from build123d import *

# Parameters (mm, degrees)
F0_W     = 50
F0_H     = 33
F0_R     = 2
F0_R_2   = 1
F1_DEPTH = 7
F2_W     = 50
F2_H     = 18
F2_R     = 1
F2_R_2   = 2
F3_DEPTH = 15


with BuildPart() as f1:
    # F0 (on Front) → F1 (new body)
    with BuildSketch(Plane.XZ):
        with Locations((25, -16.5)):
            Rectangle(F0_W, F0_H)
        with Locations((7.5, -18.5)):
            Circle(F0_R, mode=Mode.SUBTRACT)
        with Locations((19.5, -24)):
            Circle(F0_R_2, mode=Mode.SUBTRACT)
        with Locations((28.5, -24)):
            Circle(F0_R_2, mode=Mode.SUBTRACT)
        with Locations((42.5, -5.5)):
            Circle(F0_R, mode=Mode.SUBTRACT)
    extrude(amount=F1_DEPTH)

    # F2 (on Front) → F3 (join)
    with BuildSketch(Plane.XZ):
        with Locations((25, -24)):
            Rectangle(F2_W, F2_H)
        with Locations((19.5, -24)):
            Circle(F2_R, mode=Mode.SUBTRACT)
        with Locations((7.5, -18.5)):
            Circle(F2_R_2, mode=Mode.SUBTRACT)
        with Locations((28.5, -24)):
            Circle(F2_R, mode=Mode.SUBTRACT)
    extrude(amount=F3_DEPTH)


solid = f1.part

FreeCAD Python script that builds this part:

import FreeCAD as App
import Part
import Sketcher
from FreeCAD import Vector
Q = App.Units.Quantity


def add_polygon(sketch, points):
    """Adds a closed chain of lines whose ends are joined by coincident constraints."""
    first, n = sketch.GeometryCount, len(points)
    for a, b in zip(points, points[1:] + points[:1]):
        sketch.addGeometry(Part.LineSegment(App.Vector(*a, 0), App.Vector(*b, 0)), False)
    for i in range(n):
        sketch.addConstraint(Sketcher.Constraint("Coincident", first + i, 2, first + (i + 1) % n, 1))

doc = App.newDocument("Part")
params = doc.addObject("Spreadsheet::Sheet", "Params")
for row, (alias, value) in enumerate([
    ("sketch1_diameter", "2 mm"),
    ("sketch1_diameter2", "4 mm"),
    ("sketch1_width", "50 mm"),
    ("sketch1_height", "33 mm"),
    ("pad1_length", "7 mm"),
    ("sketch2_diameter", "2 mm"),
    ("sketch2_diameter2", "4 mm"),
    ("sketch2_width", "50 mm"),
    ("sketch2_height", "18 mm"),
    ("pad2_length", "15 mm"),
], start=1):
    params.set(f"A{row}", alias)
    params.set(f"B{row}", "=" + value)
    params.setAlias(f"B{row}", alias)

body = doc.addObject("PartDesign::Body", "Body")

sketch1 = doc.addObject("Sketcher::SketchObject", "Sketch")
body.addObject(sketch1)
sketch1.AttachmentSupport = (doc.XZ_Plane, [""])
sketch1.MapMode = "FlatFace"
add_polygon(sketch1, [(0, 0), (0, -33), (50, -33), (50, 0)])
sketch1.addGeometry(Part.Circle(Vector(19.5, -24, 0), Vector(0, 0, 1), 1), False)
sketch1.addGeometry(Part.Circle(Vector(7.5, -18.5, 0), Vector(0, 0, 1), 2), False)
sketch1.addGeometry(Part.Circle(Vector(28.5, -24, 0), Vector(0, 0, 1), 1), False)
sketch1.addGeometry(Part.Circle(Vector(42.5, -5.5, 0), Vector(0, 0, 1), 2), False)
sketch1.addConstraint(Sketcher.Constraint("Vertical", 0))
sketch1.addConstraint(Sketcher.Constraint("Horizontal", 1))
sketch1.addConstraint(Sketcher.Constraint("Vertical", 2))
sketch1.addConstraint(Sketcher.Constraint("Horizontal", 3))
sketch1.addConstraint(Sketcher.Constraint("Coincident", 3, 2, -1, 1))
sketch1.addConstraint(Sketcher.Constraint("Equal", 4, 6))
sketch1.addConstraint(Sketcher.Constraint("Equal", 5, 7))
sketch1.addConstraint(Sketcher.Constraint("Horizontal", 4, 3, 6, 3))
sketch1.addConstraint(Sketcher.Constraint("Diameter", 4, Q("2 mm")))
sketch1.addConstraint(Sketcher.Constraint("Diameter", 5, Q("4 mm")))
sketch1.addConstraint(Sketcher.Constraint("DistanceX", 1, 1, 1, 2, Q("50 mm")))
sketch1.addConstraint(Sketcher.Constraint("DistanceY", 0, 2, 0, 1, Q("33 mm")))
sketch1.addConstraint(Sketcher.Constraint("DistanceY", 4, 3, -1, 1, Q("24 mm")))
sketch1.addConstraint(Sketcher.Constraint("DistanceX", 5, 3, 4, 3, Q("12 mm")))
sketch1.addConstraint(Sketcher.Constraint("DistanceX", 4, 3, 6, 3, Q("9 mm")))
sketch1.addConstraint(Sketcher.Constraint("DistanceX", 6, 3, 7, 3, Q("14 mm")))
sketch1.addConstraint(Sketcher.Constraint("DistanceY", 5, 3, 7, 3, Q("13 mm")))
sketch1.addConstraint(Sketcher.Constraint("DistanceX", -1, 1, 4, 3, Q("19.5 mm")))
sketch1.addConstraint(Sketcher.Constraint("DistanceY", 5, 3, -1, 1, Q("18.5 mm")))
sketch1.setExpression("Constraints[12]", "Params.sketch1_diameter")
sketch1.setExpression("Constraints[13]", "Params.sketch1_diameter2")
sketch1.setExpression("Constraints[14]", "Params.sketch1_width")
sketch1.setExpression("Constraints[15]", "Params.sketch1_height")
pad1 = doc.addObject("PartDesign::Pad", "Pad")
body.addObject(pad1)
pad1.Profile = sketch1
pad1.setExpression("Length", "Params.pad1_length")

sketch2 = doc.addObject("Sketcher::SketchObject", "Sketch001")
body.addObject(sketch2)
sketch2.AttachmentSupport = (doc.XZ_Plane, [""])
sketch2.MapMode = "FlatFace"
add_polygon(sketch2, [(0, -15), (0, -33), (50, -33), (50, -15)])
sketch2.addGeometry(Part.Circle(Vector(19.5, -24, 0), Vector(0, 0, 1), 1), False)
sketch2.addGeometry(Part.Circle(Vector(28.5, -24, 0), Vector(0, 0, 1), 1), False)
sketch2.addGeometry(Part.Circle(Vector(7.5, -18.5, 0), Vector(0, 0, 1), 2), False)
sketch2.addConstraint(Sketcher.Constraint("Vertical", 0))
sketch2.addConstraint(Sketcher.Constraint("Horizontal", 1))
sketch2.addConstraint(Sketcher.Constraint("Vertical", 2))
sketch2.addConstraint(Sketcher.Constraint("Horizontal", 3))
sketch2.addConstraint(Sketcher.Constraint("Equal", 4, 5))
sketch2.addConstraint(Sketcher.Constraint("PointOnObject", 0, 2, -2))
sketch2.addConstraint(Sketcher.Constraint("Horizontal", 4, 3, 5, 3))
sketch2.addConstraint(Sketcher.Constraint("Diameter", 4, Q("2 mm")))
sketch2.addConstraint(Sketcher.Constraint("Diameter", 6, Q("4 mm")))
sketch2.addConstraint(Sketcher.Constraint("DistanceX", 1, 1, 1, 2, Q("50 mm")))
sketch2.addConstraint(Sketcher.Constraint("DistanceY", 0, 2, 0, 1, Q("18 mm")))
sketch2.addConstraint(Sketcher.Constraint("DistanceY", 4, 3, -1, 1, Q("24 mm")))
sketch2.addConstraint(Sketcher.Constraint("DistanceY", 0, 2, -1, 1, Q("33 mm")))
sketch2.addConstraint(Sketcher.Constraint("DistanceX", 4, 3, 5, 3, Q("9 mm")))
sketch2.addConstraint(Sketcher.Constraint("DistanceX", 6, 3, 4, 3, Q("12 mm")))
sketch2.addConstraint(Sketcher.Constraint("DistanceX", -1, 1, 4, 3, Q("19.5 mm")))
sketch2.addConstraint(Sketcher.Constraint("DistanceY", 6, 3, -1, 1, Q("18.5 mm")))
sketch2.setExpression("Constraints[11]", "Params.sketch2_diameter")
sketch2.setExpression("Constraints[12]", "Params.sketch2_diameter2")
sketch2.setExpression("Constraints[13]", "Params.sketch2_width")
sketch2.setExpression("Constraints[14]", "Params.sketch2_height")
pad2 = doc.addObject("PartDesign::Pad", "Pad001")
body.addObject(pad2)
pad2.Profile = sketch2
pad2.setExpression("Length", "Params.pad2_length")

doc.recompute()
